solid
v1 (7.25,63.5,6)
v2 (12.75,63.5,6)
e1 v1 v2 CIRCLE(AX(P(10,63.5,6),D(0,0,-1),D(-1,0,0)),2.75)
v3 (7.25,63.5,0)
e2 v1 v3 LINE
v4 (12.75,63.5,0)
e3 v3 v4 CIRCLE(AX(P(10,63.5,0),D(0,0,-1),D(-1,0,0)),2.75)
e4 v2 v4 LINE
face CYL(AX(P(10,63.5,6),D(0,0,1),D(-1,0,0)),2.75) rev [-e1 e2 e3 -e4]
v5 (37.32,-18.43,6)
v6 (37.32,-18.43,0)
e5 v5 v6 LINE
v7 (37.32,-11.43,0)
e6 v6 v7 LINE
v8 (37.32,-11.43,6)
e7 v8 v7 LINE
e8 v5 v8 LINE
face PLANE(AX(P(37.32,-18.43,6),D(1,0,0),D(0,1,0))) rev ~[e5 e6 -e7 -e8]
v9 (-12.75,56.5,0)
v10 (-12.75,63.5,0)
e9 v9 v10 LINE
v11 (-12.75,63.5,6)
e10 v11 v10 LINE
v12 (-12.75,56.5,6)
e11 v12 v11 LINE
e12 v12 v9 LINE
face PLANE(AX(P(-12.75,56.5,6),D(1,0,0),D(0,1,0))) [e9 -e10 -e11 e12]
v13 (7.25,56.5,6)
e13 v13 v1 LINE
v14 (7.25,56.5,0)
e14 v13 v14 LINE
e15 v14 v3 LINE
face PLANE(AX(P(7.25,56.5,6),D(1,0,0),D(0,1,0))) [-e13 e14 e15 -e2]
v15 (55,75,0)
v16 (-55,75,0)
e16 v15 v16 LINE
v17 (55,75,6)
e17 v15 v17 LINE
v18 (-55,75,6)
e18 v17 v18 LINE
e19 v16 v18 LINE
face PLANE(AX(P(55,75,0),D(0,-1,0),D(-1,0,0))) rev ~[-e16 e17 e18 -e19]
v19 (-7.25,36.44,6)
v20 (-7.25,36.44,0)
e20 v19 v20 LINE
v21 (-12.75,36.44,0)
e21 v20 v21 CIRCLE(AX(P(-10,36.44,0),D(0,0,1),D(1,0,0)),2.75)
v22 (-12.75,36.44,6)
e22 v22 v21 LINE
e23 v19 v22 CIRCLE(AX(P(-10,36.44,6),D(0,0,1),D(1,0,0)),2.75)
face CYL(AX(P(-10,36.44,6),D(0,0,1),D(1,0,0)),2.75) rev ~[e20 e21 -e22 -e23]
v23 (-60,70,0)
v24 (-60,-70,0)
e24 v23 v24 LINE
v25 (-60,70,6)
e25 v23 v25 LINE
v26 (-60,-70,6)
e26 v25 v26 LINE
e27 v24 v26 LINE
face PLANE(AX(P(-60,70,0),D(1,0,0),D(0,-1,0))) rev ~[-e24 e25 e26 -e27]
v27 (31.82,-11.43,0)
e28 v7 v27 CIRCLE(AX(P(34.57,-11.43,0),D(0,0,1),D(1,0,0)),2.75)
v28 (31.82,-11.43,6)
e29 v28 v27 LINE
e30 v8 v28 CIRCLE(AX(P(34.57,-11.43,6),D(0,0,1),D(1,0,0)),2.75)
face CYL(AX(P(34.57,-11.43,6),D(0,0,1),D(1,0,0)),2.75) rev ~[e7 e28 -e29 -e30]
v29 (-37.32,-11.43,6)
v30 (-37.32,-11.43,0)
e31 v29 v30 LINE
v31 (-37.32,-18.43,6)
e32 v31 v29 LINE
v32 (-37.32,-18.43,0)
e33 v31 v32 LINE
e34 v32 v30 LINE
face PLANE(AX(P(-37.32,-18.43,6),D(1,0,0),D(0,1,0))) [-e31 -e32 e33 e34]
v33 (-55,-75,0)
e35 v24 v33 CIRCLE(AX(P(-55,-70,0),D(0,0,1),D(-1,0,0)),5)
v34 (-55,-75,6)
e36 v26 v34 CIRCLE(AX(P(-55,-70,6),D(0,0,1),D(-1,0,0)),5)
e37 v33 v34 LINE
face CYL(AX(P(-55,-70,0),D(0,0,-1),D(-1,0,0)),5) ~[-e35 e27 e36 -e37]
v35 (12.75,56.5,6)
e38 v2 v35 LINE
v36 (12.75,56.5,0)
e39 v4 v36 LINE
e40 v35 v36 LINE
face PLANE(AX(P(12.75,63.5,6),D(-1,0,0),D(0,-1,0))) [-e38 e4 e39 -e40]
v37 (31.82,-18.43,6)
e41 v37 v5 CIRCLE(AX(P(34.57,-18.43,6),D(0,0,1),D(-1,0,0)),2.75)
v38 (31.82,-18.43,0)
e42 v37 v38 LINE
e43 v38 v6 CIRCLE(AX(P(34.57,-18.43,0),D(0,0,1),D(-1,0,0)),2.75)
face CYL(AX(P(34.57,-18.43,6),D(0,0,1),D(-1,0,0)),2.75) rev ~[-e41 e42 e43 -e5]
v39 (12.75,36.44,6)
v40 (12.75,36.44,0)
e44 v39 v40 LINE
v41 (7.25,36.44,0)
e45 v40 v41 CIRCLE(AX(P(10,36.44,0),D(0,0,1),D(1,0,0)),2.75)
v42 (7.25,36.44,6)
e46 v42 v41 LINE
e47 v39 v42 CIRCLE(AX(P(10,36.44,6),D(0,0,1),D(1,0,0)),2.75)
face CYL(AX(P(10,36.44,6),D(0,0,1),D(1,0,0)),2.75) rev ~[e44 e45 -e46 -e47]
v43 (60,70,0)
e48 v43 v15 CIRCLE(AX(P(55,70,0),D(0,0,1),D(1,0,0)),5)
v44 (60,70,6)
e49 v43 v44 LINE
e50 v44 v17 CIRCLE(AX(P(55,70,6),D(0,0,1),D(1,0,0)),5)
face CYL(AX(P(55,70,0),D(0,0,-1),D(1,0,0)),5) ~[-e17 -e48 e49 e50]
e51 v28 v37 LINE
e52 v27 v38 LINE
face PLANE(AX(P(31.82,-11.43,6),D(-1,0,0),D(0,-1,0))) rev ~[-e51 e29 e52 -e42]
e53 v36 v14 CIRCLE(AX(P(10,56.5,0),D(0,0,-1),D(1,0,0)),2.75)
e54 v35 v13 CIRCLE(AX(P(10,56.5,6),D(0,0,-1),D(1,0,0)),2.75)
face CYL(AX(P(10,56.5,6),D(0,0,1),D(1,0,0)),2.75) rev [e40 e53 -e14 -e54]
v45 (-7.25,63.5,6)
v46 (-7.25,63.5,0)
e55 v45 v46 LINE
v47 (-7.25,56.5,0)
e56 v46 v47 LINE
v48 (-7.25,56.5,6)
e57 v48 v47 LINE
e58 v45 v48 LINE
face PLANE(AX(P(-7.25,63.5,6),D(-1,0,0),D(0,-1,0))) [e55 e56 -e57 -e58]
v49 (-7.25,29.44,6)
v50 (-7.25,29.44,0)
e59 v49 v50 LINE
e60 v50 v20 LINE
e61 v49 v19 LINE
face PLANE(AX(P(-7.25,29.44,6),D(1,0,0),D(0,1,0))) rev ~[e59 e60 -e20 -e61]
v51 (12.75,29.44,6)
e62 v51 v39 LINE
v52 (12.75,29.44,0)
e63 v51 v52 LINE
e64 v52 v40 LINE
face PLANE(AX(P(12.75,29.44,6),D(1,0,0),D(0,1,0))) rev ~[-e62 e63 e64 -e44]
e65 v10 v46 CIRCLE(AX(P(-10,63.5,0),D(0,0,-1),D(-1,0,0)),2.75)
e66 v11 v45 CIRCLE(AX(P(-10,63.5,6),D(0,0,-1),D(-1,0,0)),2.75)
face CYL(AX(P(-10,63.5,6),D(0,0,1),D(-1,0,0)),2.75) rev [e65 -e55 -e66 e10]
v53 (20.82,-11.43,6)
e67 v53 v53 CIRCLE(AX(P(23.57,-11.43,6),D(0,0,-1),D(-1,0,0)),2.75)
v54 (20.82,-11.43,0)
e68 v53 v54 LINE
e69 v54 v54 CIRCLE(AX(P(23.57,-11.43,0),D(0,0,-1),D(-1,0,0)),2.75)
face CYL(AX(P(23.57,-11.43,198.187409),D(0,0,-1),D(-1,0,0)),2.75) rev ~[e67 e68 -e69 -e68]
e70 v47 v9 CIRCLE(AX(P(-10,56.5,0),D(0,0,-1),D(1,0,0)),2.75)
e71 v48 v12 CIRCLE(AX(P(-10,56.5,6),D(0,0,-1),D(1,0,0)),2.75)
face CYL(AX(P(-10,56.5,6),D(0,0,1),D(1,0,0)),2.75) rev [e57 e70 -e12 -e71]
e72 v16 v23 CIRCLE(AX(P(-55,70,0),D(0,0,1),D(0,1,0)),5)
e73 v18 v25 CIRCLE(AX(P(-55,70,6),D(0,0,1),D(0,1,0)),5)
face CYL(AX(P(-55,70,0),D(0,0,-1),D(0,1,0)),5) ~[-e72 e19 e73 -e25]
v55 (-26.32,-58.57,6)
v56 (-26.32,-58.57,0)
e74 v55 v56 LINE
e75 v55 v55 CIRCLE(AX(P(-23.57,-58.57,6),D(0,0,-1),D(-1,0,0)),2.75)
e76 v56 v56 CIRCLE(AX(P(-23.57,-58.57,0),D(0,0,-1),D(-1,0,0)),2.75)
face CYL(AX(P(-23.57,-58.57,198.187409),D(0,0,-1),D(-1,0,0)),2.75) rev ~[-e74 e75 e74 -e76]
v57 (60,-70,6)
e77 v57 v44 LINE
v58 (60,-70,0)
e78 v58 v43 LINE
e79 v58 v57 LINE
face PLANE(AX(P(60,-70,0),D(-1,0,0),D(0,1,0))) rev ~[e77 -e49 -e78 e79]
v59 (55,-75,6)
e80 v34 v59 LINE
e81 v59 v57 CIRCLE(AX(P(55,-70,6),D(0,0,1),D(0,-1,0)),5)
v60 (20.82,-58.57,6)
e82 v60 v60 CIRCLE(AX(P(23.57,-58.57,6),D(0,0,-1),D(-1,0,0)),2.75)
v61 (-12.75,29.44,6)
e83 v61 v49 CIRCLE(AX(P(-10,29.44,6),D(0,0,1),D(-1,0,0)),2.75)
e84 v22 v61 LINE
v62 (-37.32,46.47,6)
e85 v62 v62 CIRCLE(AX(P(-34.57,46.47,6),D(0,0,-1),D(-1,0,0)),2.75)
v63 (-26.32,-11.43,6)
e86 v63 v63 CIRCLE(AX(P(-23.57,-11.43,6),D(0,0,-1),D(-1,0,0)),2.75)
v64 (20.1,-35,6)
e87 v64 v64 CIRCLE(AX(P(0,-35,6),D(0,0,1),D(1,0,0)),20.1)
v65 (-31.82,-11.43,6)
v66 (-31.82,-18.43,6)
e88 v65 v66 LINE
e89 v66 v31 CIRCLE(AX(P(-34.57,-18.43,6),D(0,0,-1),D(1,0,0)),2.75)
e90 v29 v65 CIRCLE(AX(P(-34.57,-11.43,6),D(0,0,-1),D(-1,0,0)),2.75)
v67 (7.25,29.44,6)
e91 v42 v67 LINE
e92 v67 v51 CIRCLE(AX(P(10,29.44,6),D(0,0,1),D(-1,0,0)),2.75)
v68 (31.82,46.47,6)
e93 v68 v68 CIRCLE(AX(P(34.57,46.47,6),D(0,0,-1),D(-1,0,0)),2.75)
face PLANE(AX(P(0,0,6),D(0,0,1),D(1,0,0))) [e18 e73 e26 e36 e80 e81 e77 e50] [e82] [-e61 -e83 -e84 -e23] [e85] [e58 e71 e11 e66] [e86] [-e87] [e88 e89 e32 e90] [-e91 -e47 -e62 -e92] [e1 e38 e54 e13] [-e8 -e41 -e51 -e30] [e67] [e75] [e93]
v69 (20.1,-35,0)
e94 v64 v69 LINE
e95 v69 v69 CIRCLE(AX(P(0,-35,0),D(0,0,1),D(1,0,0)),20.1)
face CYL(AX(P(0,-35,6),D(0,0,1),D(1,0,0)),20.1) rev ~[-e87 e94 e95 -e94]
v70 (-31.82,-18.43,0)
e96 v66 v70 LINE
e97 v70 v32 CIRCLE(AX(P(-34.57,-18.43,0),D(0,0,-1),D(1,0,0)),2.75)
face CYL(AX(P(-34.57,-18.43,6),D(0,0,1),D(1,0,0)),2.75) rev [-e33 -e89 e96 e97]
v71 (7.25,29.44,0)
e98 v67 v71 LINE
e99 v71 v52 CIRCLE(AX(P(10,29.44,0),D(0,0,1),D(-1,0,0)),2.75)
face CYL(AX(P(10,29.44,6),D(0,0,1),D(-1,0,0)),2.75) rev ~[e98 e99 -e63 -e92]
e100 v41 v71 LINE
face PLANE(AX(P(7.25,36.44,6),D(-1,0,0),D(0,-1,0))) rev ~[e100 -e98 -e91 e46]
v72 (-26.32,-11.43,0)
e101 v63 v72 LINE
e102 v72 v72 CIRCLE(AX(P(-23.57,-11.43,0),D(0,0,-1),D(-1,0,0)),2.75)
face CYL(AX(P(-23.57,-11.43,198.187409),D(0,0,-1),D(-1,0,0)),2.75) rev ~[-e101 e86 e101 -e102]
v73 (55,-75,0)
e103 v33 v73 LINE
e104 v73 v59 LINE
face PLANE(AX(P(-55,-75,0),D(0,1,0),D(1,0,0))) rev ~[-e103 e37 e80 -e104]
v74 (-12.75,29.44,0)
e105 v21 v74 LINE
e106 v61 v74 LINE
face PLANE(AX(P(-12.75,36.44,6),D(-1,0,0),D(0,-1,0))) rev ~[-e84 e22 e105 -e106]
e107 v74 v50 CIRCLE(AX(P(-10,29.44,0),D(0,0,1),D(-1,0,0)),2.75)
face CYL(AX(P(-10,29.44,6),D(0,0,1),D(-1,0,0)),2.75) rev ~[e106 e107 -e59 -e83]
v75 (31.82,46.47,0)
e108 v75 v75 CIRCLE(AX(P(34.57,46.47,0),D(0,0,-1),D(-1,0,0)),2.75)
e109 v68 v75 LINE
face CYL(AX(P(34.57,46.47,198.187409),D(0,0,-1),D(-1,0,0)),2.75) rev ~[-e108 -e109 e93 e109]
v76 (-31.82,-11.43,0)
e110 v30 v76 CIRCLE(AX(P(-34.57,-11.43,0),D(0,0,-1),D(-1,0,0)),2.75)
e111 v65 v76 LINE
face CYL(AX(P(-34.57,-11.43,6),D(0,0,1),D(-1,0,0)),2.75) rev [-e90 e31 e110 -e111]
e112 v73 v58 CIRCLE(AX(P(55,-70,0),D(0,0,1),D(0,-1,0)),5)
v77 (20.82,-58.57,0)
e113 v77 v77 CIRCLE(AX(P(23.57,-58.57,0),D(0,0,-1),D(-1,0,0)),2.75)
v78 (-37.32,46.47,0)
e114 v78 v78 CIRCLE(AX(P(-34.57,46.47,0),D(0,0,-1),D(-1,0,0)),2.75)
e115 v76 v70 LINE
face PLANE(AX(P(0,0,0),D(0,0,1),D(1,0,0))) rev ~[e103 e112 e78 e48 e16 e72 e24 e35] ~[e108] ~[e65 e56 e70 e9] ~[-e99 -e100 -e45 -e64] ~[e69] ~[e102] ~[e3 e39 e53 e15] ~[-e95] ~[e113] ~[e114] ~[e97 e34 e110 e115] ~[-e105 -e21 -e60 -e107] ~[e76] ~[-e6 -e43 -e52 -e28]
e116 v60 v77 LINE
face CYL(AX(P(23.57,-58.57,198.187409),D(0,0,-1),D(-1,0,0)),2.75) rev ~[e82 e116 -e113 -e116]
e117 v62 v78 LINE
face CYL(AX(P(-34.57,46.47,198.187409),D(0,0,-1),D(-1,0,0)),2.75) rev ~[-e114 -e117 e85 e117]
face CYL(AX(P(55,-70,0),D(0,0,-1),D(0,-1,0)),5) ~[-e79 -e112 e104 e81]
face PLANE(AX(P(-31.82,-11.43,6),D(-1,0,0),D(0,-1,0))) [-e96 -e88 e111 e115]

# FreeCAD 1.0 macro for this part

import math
import FreeCAD as App
import Part
import Sketcher
from FreeCAD import Vector

doc = App.newDocument("Part")
params = doc.addObject("Spreadsheet::Sheet", "Params")
for row, (alias, value) in enumerate([
    ("sketch1_radius", "5 mm"),
    ("sketch1_width", "110 mm"),
    ("sketch1_height", "140 mm"),
    ("pad1_length", "6 mm"),
    ("sketch2_diameter", "40.2 mm"),
    ("pocket1_length", "6 mm"),
    ("sketch3_diameter", "5.5 mm"),
    ("hole_diameter", "5.5 mm"),
    ("sketch4_height", "7 mm"),
    ("sketch4_radius", "2.75 mm"),
    ("pocket2_length", "6 mm"),
    ("sketch5_diameter", "5.5 mm"),
    ("hole2_diameter", "5.5 mm"),
    ("sketch6_height", "7 mm"),
    ("sketch6_radius", "2.75 mm"),
    ("pocket3_length", "6 mm"),
], start=1):
    params.set(f"A{row}", alias)
    params.set(f"B{row}", "=" + value)
    params.setAlias(f"B{row}", alias)

body = doc.addObject("PartDesign::Body", "Body")

sketch1 = doc.addObject("Sketcher::SketchObject", "Sketch")
body.addObject(sketch1)
sketch1.AttachmentSupport = (doc.XY_Plane, [""])
sketch1.MapMode = "FlatFace"
sketch1.addGeometry([
    Part.LineSegment(Vector(-55, -75, 0), Vector(55, -75, 0)),
    Part.ArcOfCircle(Part.Circle(Vector(55, -70, 0), Vector(0, 0, 1), 5), math.radians(-90), math.radians(0)),
    Part.LineSegment(Vector(60, -70, 0), Vector(60, 70, 0)),
    Part.ArcOfCircle(Part.Circle(Vector(55, 70, 0), Vector(0, 0, 1), 5), math.radians(0), math.radians(90)),
    Part.LineSegment(Vector(55, 75, 0), Vector(-55, 75, 0)),
    Part.ArcOfCircle(Part.Circle(Vector(-55, 70, 0), Vector(0, 0, 1), 5), math.radians(90), math.radians(180)),
    Part.LineSegment(Vector(-60, 70, 0), Vector(-60, -70, 0)),
    Part.ArcOfCircle(Part.Circle(Vector(-55, -70, 0), Vector(0, 0, 1), 5), math.radians(180), math.radians(270)),
], False)
sketch1.addConstraint([
    Sketcher.Constraint("Tangent", 0, 2, 1, 1),
    Sketcher.Constraint("Tangent", 1, 2, 2, 1),
    Sketcher.Constraint("Tangent", 2, 2, 3, 1),
    Sketcher.Constraint("Tangent", 3, 2, 4, 1),
    Sketcher.Constraint("Tangent", 4, 2, 5, 1),
    Sketcher.Constraint("Tangent", 5, 2, 6, 1),
    Sketcher.Constraint("Tangent", 6, 2, 7, 1),
    Sketcher.Constraint("Tangent", 7, 2, 0, 1),
    Sketcher.Constraint("Horizontal", 0),
    Sketcher.Constraint("Vertical", 2),
    Sketcher.Constraint("Horizontal", 4),
    Sketcher.Constraint("Vertical", 6),
    Sketcher.Constraint("Equal", 1, 3),
    Sketcher.Constraint("Equal", 3, 5),
    Sketcher.Constraint("Equal", 5, 7),
    Sketcher.Constraint("Symmetric", 1, 3, 5, 3, -1, 1),
    Sketcher.Constraint("Radius", 1, 5.0),
    Sketcher.Constraint("DistanceX", 0, 1, 0, 2, 110.0),
    Sketcher.Constraint("DistanceY", 2, 1, 2, 2, 140.0),
])
sketch1.setExpression("Constraints[16]", "Params.sketch1_radius")
sketch1.setExpression("Constraints[17]", "Params.sketch1_width")
sketch1.setExpression("Constraints[18]", "Params.sketch1_height")
pad1 = doc.addObject("PartDesign::Pad", "Pad")
body.addObject(pad1)
pad1.Profile = sketch1
pad1.setExpression("Length", "Params.pad1_length")

sketch2 = doc.addObject("Sketcher::SketchObject", "Sketch001")
body.addObject(sketch2)
sketch2.AttachmentSupport = (doc.XY_Plane, [""])
sketch2.MapMode = "FlatFace"
sketch2.AttachmentOffset = App.Placement(Vector(0, 0, 6), App.Rotation())
sketch2.addGeometry(Part.Circle(Vector(0, -35, 0), Vector(0, 0, 1), 20.1), False)
sketch2.addConstraint([
    Sketcher.Constraint("PointOnObject", 0, 3, -2),
    Sketcher.Constraint("Diameter", 0, 40.2),
    Sketcher.Constraint("DistanceY", 0, 3, -1, 1, 35.0),
])
sketch2.setExpression("Constraints[1]", "Params.sketch2_diameter")
pocket1 = doc.addObject("PartDesign::Pocket", "Pocket")
body.addObject(pocket1)
pocket1.Profile = sketch2
pocket1.setExpression("Length", "Params.pocket1_length")

sketch3 = doc.addObject("Sketcher::SketchObject", "Sketch002")
body.addObject(sketch3)
sketch3.AttachmentSupport = (doc.XY_Plane, [""])
sketch3.MapMode = "FlatFace"
sketch3.AttachmentOffset = App.Placement(Vector(0, 0, 6), App.Rotation())
sketch3.addGeometry([
    Part.Circle(Vector(-23.57, -11.43, 0), Vector(0, 0, 1), 2.75),
    Part.Circle(Vector(23.57, -11.43, 0), Vector(0, 0, 1), 2.75),
    Part.Circle(Vector(23.57, -58.57, 0), Vector(0, 0, 1), 2.75),
    Part.Circle(Vector(-23.57, -58.57, 0), Vector(0, 0, 1), 2.75),
], False)
sketch3.addConstraint([
    Sketcher.Constraint("Equal", 0, 1),
    Sketcher.Constraint("Equal", 1, 2),
    Sketcher.Constraint("Equal", 2, 3),
    Sketcher.Constraint("Symmetric", 0, 3, 1, 3, -2),
    Sketcher.Constraint("Symmetric", 2, 3, 3, 3, -2),
    Sketcher.Constraint("Vertical", 1, 3, 2, 3),
    Sketcher.Constraint("Diameter", 0, 5.5),
    Sketcher.Constraint("DistanceX", 0, 3, -1, 1, 23.57),
    Sketcher.Constraint("DistanceY", 0, 3, -1, 1, 11.43),
    Sketcher.Constraint("DistanceY", 2, 3, -1, 1, 58.57),
])
sketch3.setExpression("Constraints[6]", "Params.sketch3_diameter")
doc.recompute()
hole = doc.addObject("PartDesign::Hole", "Hole")
body.addObject(hole)
hole.Profile = sketch3
hole.ThreadType = "None"
hole.setExpression("Diameter", "Params.hole_diameter")
hole.DepthType = "ThroughAll"

sketch4 = doc.addObject("Sketcher::SketchObject", "Sketch003")
body.addObject(sketch4)
sketch4.AttachmentSupport = (doc.XY_Plane, [""])
sketch4.MapMode = "FlatFace"
sketch4.AttachmentOffset = App.Placement(Vector(0, 0, 6), App.Rotation())
sketch4.addGeometry([
    Part.LineSegment(Vector(-31.82, -18.43, 0), Vector(-31.82, -11.43, 0)),
    Part.ArcOfCircle(Part.Circle(Vector(-34.57, -11.43, 0), Vector(0, 0, 1), 2.75), math.radians(0), math.radians(180)),
    Part.LineSegment(Vector(-37.32, -11.43, 0), Vector(-37.32, -18.43, 0)),
    Part.ArcOfCircle(Part.Circle(Vector(-34.57, -18.43, 0), Vector(0, 0, 1), 2.75), math.radians(180), math.radians(360)),
    Part.LineSegment(Vector(31.82, -11.43, 0), Vector(31.82, -18.43, 0)),
    Part.ArcOfCircle(Part.Circle(Vector(34.57, -18.43, 0), Vector(0, 0, 1), 2.75), math.radians(180), math.radians(360)),
    Part.LineSegment(Vector(37.32, -18.43, 0), Vector(37.32, -11.43, 0)),
    Part.ArcOfCircle(Part.Circle(Vector(34.57, -11.43, 0), Vector(0, 0, 1), 2.75), math.radians(0), math.radians(180)),
], False)
sketch4.addConstraint([
    Sketcher.Constraint("Tangent", 0, 2, 1, 1),
    Sketcher.Constraint("Tangent", 1, 2, 2, 1),
    Sketcher.Constraint("Tangent", 2, 2, 3, 1),
    Sketcher.Constraint("Tangent", 3, 2, 0, 1),
    Sketcher.Constraint("Tangent", 4, 2, 5, 1),
    Sketcher.Constraint("Tangent", 5, 2, 6, 1),
    Sketcher.Constraint("Tangent", 6, 2, 7, 1),
    Sketcher.Constraint("Tangent", 7, 2, 4, 1),
    Sketcher.Constraint("Vertical", 0),
    Sketcher.Constraint("Vertical", 2),
    Sketcher.Constraint("Vertical", 4),
    Sketcher.Constraint("Vertical", 6),
    Sketcher.Constraint("Equal", 3, 5),
    Sketcher.Constraint("Symmetric", 3, 3, 5, 3, -2),
    Sketcher.Constraint("Horizontal", 1, 3, 7, 3),
    Sketcher.Constraint("DistanceY", 0, 1, 0, 2, 7.0),
    Sketcher.Constraint("Radius", 1, 2.75),
    Sketcher.Constraint("DistanceX", 1, 3, -1, 1, 34.57),
    Sketcher.Constraint("DistanceY", 1, 3, -1, 1, 11.43),
])
sketch4.setExpression("Constraints[15]", "Params.sketch4_height")
sketch4.setExpression("Constraints[16]", "Params.sketch4_radius")
pocket2 = doc.addObject("PartDesign::Pocket", "Pocket001")
body.addObject(pocket2)
pocket2.Profile = sketch4
pocket2.setExpression("Length", "Params.pocket2_length")

sketch5 = doc.addObject("Sketcher::SketchObject", "Sketch004")
body.addObject(sketch5)
sketch5.AttachmentSupport = (doc.XY_Plane, [""])
sketch5.MapMode = "FlatFace"
sketch5.AttachmentOffset = App.Placement(Vector(0, 0, 6), App.Rotation())
sketch5.addGeometry([
    Part.Circle(Vector(-34.57, 46.47, 0), Vector(0, 0, 1), 2.75),
    Part.Circle(Vector(34.57, 46.47, 0), Vector(0, 0, 1), 2.75),
], False)
sketch5.addConstraint([
    Sketcher.Constraint("Equal", 0, 1),
    Sketcher.Constraint("Symmetric", 0, 3, 1, 3, -2),
    Sketcher.Constraint("Diameter", 0, 5.5),
    Sketcher.Constraint("DistanceX", 0, 3, -1, 1, 34.57),
    Sketcher.Constraint("DistanceY", -1, 1, 0, 3, 46.47),
])
sketch5.setExpression("Constraints[2]", "Params.sketch5_diameter")
doc.recompute()
hole2 = doc.addObject("PartDesign::Hole", "Hole001")
body.addObject(hole2)
hole2.Profile = sketch5
hole2.ThreadType = "None"
hole2.setExpression("Diameter", "Params.hole2_diameter")
hole2.DepthType = "ThroughAll"

sketch6 = doc.addObject("Sketcher::SketchObject", "Sketch005")
body.addObject(sketch6)
sketch6.AttachmentSupport = (doc.XY_Plane, [""])
sketch6.MapMode = "FlatFace"
sketch6.AttachmentOffset = App.Placement(Vector(0, 0, 6), App.Rotation())
sketch6.addGeometry([
    Part.LineSegment(Vector(-7.25, 56.5, 0), Vector(-7.25, 63.5, 0)),
    Part.ArcOfCircle(Part.Circle(Vector(-10, 63.5, 0), Vector(0, 0, 1), 2.75), math.radians(0), math.radians(180)),
    Part.LineSegment(Vector(-12.75, 63.5, 0), Vector(-12.75, 56.5, 0)),
    Part.ArcOfCircle(Part.Circle(Vector(-10, 56.5, 0), Vector(0, 0, 1), 2.75), math.radians(180), math.radians(360)),
    Part.LineSegment(Vector(12.75, 56.5, 0), Vector(12.75, 63.5, 0)),
    Part.ArcOfCircle(Part.Circle(Vector(10, 63.5, 0), Vector(0, 0, 1), 2.75), math.radians(0), math.radians(180)),
    Part.LineSegment(Vector(7.25, 63.5, 0), Vector(7.25, 56.5, 0)),
    Part.ArcOfCircle(Part.Circle(Vector(10, 56.5, 0), Vector(0, 0, 1), 2.75), math.radians(180), math.radians(360)),
    Part.LineSegment(Vector(-7.25, 29.44, 0), Vector(-7.25, 36.44, 0)),
    Part.ArcOfCircle(Part.Circle(Vector(-10, 36.44, 0), Vector(0, 0, 1), 2.75), math.radians(0), math.radians(180)),
    Part.LineSegment(Vector(-12.75, 36.44, 0), Vector(-12.75, 29.44, 0)),
    Part.ArcOfCircle(Part.Circle(Vector(-10, 29.44, 0), Vector(0, 0, 1), 2.75), math.radians(180), math.radians(360)),
    Part.LineSegment(Vector(12.75, 29.44, 0), Vector(12.75, 36.44, 0)),
    Part.ArcOfCircle(Part.Circle(Vector(10, 36.44, 0), Vector(0, 0, 1), 2.75), math.radians(0), math.radians(180)),
    Part.LineSegment(Vector(7.25, 36.44, 0), Vector(7.25, 29.44, 0)),
    Part.ArcOfCircle(Part.Circle(Vector(10, 29.44, 0), Vector(0, 0, 1), 2.75), math.radians(180), math.radians(360)),
], False)
sketch6.addConstraint([
    Sketcher.Constraint("Tangent", 0, 2, 1, 1),
    Sketcher.Constraint("Tangent", 1, 2, 2, 1),
    Sketcher.Constraint("Tangent", 2, 2, 3, 1),
    Sketcher.Constraint("Tangent", 3, 2, 0, 1),
    Sketcher.Constraint("Tangent", 4, 2, 5, 1),
    Sketcher.Constraint("Tangent", 5, 2, 6, 1),
    Sketcher.Constraint("Tangent", 6, 2, 7, 1),
    Sketcher.Constraint("Tangent", 7, 2, 4, 1),
    Sketcher.Constraint("Tangent", 8, 2, 9, 1),
    Sketcher.Constraint("Tangent", 9, 2, 10, 1),
    Sketcher.Constraint("Tangent", 10, 2, 11, 1),
    Sketcher.Constraint("Tangent", 11, 2, 8, 1),
    Sketcher.Constraint("Tangent", 12, 2, 13, 1),
    Sketcher.Constraint("Tangent", 13, 2, 14, 1),
    Sketcher.Constraint("Tangent", 14, 2, 15, 1),
    Sketcher.Constraint("Tangent", 15, 2, 12, 1),
    Sketcher.Constraint("Vertical", 0),
    Sketcher.Constraint("Vertical", 2),
    Sketcher.Constraint("Vertical", 4),
    Sketcher.Constraint("Vertical", 6),
    Sketcher.Constraint("Vertical", 8),
    Sketcher.Constraint("Vertical", 10),
    Sketcher.Constraint("Vertical", 12),
    Sketcher.Constraint("Vertical", 14),
    Sketcher.Constraint("Equal", 3, 5),
    Sketcher.Constraint("Equal", 7, 9),
    Sketcher.Constraint("Equal", 11, 13),
    Sketcher.Constraint("Symmetric", 1, 3, 5, 3, -2),
    Sketcher.Constraint("Symmetric", 9, 3, 13, 3, -2),
    Sketcher.Constraint("Horizontal", 3, 3, 7, 3),
    Sketcher.Constraint("Horizontal", 11, 3, 15, 3),
    Sketcher.Constraint("Vertical", 3, 3, 9, 3),
    Sketcher.Constraint("Equal", 6, 8),
    Sketcher.Constraint("DistanceY", 0, 1, 0, 2, 7.0),
    Sketcher.Constraint("Radius", 1, 2.75),
    Sketcher.Constraint("DistanceX", 1, 3, -1, 1, 10.0),
    Sketcher.Constraint("DistanceY", -1, 1, 1, 3, 63.5),
    Sketcher.Constraint("DistanceY", -1, 1, 9, 3, 36.44),
])
sketch6.setExpression("Constraints[33]", "Params.sketch6_height")
sketch6.setExpression("Constraints[34]", "Params.sketch6_radius")
pocket3 = doc.addObject("PartDesign::Pocket", "Pocket002")
body.addObject(pocket3)
pocket3.Profile = sketch6
pocket3.setExpression("Length", "Params.pocket3_length")

doc.recompute()
